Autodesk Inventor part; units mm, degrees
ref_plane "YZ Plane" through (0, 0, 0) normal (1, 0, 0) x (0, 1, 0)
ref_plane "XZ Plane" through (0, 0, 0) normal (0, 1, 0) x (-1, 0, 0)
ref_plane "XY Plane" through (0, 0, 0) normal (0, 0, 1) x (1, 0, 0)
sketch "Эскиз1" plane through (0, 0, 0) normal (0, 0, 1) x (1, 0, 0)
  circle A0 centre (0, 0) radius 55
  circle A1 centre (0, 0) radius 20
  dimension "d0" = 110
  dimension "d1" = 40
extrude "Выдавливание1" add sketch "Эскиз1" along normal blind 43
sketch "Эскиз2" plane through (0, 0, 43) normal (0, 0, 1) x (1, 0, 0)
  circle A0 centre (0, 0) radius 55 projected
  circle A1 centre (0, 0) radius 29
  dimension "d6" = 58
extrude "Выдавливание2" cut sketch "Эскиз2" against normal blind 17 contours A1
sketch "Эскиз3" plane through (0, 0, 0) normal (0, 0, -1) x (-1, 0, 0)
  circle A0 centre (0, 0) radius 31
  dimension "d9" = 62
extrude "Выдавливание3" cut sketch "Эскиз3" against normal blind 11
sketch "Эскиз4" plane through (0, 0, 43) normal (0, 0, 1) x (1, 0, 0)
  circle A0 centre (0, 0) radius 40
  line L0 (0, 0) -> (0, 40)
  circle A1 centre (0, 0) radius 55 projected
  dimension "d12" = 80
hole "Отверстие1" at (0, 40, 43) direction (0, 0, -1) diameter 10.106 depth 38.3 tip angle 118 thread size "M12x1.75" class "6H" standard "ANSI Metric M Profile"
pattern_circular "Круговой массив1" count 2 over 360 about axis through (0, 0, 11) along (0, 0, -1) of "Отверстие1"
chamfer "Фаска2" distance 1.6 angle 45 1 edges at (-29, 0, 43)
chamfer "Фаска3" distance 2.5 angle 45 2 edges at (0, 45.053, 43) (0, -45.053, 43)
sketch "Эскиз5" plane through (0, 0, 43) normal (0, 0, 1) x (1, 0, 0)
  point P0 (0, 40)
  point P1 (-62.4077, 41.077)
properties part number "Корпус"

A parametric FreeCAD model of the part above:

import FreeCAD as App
import Part
import Sketcher


def edges_at(feature, points):
    """Names of the edges that pass closest to the given points."""
    edges = feature.Shape.Edges
    near = lambda p: min(range(len(edges)), key=lambda i: edges[i].distToShape(Part.Vertex(*p))[0])
    return sorted({f"Edge{near(p) + 1}" for p in points})

doc = App.newDocument("Part")
body = doc.addObject("PartDesign::Body", "Body")

# Sketch on XY plane
sketch1 = doc.addObject("Sketcher::SketchObject", "Sketch")
body.addObject(sketch1)
sketch1.AttachmentSupport = (doc.XY_Plane, [""])
sketch1.MapMode = "FlatFace"
sketch1.addGeometry([
    Part.Circle(App.Vector(0, 0, 0), App.Vector(0, 0, 1), 55),
    Part.Circle(App.Vector(0, 0, 0), App.Vector(0, 0, 1), 20),
], False)
sketch1.addConstraint([
    Sketcher.Constraint("Coincident", 0, 3, -1, 1),
    Sketcher.Constraint("Coincident", 1, 3, -1, 1),
    Sketcher.Constraint("Diameter", 0, 110.0),
    Sketcher.Constraint("Diameter", 1, 40.0),
])
pad1 = doc.addObject("PartDesign::Pad", "Pad")
body.addObject(pad1)
pad1.Profile = sketch1
pad1.Length = 43

# Sketch on XY plane
sketch2 = doc.addObject("Sketcher::SketchObject", "Sketch001")
body.addObject(sketch2)
sketch2.AttachmentSupport = (doc.XY_Plane, [""])
sketch2.MapMode = "FlatFace"
sketch2.AttachmentOffset = App.Placement(App.Vector(0, 0, 43), App.Rotation())
sketch2.addGeometry(Part.Circle(App.Vector(0, 0, 0), App.Vector(0, 0, 1), 29), False)
sketch2.addConstraint([
    Sketcher.Constraint("Coincident", 0, 3, -1, 1),
    Sketcher.Constraint("Diameter", 0, 58.0),
])
pocket1 = doc.addObject("PartDesign::Pocket", "Pocket")
body.addObject(pocket1)
pocket1.Profile = sketch2
pocket1.Length = 17

# Sketch on XY plane
sketch3 = doc.addObject("Sketcher::SketchObject", "Sketch002")
body.addObject(sketch3)
sketch3.AttachmentSupport = (doc.XY_Plane, [""])
sketch3.MapMode = "FlatFace"
sketch3.addGeometry(Part.Circle(App.Vector(0, 0, 0), App.Vector(0, 0, 1), 31), False)
sketch3.addConstraint([
    Sketcher.Constraint("Coincident", 0, 3, -1, 1),
    Sketcher.Constraint("Diameter", 0, 62.0),
])
pocket2 = doc.addObject("PartDesign::Pocket", "Pocket001")
body.addObject(pocket2)
pocket2.Profile = sketch3
pocket2.Length = 11
pocket2.Reversed = True

# Sketch on XY plane
sketch4 = doc.addObject("Sketcher::SketchObject", "Sketch003")
body.addObject(sketch4)
sketch4.AttachmentSupport = (doc.XY_Plane, [""])
sketch4.MapMode = "FlatFace"
sketch4.AttachmentOffset = App.Placement(App.Vector(0, 0, 43), App.Rotation())
sketch4.addGeometry(Part.Circle(App.Vector(0, 40, 0), App.Vector(0, 0, 1), 5), False)
sketch4.addConstraint([
    Sketcher.Constraint("PointOnObject", 0, 3, -2),
    Sketcher.Constraint("Diameter", 0, 10.106),
    Sketcher.Constraint("DistanceY", -1, 1, 0, 3, 40.0),
])
doc.recompute()
hole = doc.addObject("PartDesign::Hole", "Hole")
body.addObject(hole)
hole.Profile = sketch4
hole.ThreadType = "None"
hole.Diameter = 10.106
hole.DepthType = "Dimension"
hole.Depth = 38.3
hole.DrillPoint = "Angled"
hole.DrillPointAngle = 118
doc.recompute()

polarpattern = doc.addObject("PartDesign::PolarPattern", "PolarPattern")
body.addObject(polarpattern)
polarpattern.Originals = [hole]
polarpattern.Axis = (doc.Z_Axis, [""])
polarpattern.Angle = 360
polarpattern.Occurrences = 2
body.Tip = polarpattern
doc.recompute()

chamfer = doc.addObject("PartDesign::Chamfer", "Chamfer")
body.addObject(chamfer)
chamfer.Base = (polarpattern, edges_at(polarpattern, [(-29, 0, 43)]))
chamfer.Size = 1.6
doc.recompute()

chamfer2 = doc.addObject("PartDesign::Chamfer", "Chamfer001")
body.addObject(chamfer2)
chamfer2.Base = (chamfer, edges_at(chamfer, [(0, 45.053, 43), (0, -45.053, 43)]))
chamfer2.Size = 2.5

doc.recompute()
